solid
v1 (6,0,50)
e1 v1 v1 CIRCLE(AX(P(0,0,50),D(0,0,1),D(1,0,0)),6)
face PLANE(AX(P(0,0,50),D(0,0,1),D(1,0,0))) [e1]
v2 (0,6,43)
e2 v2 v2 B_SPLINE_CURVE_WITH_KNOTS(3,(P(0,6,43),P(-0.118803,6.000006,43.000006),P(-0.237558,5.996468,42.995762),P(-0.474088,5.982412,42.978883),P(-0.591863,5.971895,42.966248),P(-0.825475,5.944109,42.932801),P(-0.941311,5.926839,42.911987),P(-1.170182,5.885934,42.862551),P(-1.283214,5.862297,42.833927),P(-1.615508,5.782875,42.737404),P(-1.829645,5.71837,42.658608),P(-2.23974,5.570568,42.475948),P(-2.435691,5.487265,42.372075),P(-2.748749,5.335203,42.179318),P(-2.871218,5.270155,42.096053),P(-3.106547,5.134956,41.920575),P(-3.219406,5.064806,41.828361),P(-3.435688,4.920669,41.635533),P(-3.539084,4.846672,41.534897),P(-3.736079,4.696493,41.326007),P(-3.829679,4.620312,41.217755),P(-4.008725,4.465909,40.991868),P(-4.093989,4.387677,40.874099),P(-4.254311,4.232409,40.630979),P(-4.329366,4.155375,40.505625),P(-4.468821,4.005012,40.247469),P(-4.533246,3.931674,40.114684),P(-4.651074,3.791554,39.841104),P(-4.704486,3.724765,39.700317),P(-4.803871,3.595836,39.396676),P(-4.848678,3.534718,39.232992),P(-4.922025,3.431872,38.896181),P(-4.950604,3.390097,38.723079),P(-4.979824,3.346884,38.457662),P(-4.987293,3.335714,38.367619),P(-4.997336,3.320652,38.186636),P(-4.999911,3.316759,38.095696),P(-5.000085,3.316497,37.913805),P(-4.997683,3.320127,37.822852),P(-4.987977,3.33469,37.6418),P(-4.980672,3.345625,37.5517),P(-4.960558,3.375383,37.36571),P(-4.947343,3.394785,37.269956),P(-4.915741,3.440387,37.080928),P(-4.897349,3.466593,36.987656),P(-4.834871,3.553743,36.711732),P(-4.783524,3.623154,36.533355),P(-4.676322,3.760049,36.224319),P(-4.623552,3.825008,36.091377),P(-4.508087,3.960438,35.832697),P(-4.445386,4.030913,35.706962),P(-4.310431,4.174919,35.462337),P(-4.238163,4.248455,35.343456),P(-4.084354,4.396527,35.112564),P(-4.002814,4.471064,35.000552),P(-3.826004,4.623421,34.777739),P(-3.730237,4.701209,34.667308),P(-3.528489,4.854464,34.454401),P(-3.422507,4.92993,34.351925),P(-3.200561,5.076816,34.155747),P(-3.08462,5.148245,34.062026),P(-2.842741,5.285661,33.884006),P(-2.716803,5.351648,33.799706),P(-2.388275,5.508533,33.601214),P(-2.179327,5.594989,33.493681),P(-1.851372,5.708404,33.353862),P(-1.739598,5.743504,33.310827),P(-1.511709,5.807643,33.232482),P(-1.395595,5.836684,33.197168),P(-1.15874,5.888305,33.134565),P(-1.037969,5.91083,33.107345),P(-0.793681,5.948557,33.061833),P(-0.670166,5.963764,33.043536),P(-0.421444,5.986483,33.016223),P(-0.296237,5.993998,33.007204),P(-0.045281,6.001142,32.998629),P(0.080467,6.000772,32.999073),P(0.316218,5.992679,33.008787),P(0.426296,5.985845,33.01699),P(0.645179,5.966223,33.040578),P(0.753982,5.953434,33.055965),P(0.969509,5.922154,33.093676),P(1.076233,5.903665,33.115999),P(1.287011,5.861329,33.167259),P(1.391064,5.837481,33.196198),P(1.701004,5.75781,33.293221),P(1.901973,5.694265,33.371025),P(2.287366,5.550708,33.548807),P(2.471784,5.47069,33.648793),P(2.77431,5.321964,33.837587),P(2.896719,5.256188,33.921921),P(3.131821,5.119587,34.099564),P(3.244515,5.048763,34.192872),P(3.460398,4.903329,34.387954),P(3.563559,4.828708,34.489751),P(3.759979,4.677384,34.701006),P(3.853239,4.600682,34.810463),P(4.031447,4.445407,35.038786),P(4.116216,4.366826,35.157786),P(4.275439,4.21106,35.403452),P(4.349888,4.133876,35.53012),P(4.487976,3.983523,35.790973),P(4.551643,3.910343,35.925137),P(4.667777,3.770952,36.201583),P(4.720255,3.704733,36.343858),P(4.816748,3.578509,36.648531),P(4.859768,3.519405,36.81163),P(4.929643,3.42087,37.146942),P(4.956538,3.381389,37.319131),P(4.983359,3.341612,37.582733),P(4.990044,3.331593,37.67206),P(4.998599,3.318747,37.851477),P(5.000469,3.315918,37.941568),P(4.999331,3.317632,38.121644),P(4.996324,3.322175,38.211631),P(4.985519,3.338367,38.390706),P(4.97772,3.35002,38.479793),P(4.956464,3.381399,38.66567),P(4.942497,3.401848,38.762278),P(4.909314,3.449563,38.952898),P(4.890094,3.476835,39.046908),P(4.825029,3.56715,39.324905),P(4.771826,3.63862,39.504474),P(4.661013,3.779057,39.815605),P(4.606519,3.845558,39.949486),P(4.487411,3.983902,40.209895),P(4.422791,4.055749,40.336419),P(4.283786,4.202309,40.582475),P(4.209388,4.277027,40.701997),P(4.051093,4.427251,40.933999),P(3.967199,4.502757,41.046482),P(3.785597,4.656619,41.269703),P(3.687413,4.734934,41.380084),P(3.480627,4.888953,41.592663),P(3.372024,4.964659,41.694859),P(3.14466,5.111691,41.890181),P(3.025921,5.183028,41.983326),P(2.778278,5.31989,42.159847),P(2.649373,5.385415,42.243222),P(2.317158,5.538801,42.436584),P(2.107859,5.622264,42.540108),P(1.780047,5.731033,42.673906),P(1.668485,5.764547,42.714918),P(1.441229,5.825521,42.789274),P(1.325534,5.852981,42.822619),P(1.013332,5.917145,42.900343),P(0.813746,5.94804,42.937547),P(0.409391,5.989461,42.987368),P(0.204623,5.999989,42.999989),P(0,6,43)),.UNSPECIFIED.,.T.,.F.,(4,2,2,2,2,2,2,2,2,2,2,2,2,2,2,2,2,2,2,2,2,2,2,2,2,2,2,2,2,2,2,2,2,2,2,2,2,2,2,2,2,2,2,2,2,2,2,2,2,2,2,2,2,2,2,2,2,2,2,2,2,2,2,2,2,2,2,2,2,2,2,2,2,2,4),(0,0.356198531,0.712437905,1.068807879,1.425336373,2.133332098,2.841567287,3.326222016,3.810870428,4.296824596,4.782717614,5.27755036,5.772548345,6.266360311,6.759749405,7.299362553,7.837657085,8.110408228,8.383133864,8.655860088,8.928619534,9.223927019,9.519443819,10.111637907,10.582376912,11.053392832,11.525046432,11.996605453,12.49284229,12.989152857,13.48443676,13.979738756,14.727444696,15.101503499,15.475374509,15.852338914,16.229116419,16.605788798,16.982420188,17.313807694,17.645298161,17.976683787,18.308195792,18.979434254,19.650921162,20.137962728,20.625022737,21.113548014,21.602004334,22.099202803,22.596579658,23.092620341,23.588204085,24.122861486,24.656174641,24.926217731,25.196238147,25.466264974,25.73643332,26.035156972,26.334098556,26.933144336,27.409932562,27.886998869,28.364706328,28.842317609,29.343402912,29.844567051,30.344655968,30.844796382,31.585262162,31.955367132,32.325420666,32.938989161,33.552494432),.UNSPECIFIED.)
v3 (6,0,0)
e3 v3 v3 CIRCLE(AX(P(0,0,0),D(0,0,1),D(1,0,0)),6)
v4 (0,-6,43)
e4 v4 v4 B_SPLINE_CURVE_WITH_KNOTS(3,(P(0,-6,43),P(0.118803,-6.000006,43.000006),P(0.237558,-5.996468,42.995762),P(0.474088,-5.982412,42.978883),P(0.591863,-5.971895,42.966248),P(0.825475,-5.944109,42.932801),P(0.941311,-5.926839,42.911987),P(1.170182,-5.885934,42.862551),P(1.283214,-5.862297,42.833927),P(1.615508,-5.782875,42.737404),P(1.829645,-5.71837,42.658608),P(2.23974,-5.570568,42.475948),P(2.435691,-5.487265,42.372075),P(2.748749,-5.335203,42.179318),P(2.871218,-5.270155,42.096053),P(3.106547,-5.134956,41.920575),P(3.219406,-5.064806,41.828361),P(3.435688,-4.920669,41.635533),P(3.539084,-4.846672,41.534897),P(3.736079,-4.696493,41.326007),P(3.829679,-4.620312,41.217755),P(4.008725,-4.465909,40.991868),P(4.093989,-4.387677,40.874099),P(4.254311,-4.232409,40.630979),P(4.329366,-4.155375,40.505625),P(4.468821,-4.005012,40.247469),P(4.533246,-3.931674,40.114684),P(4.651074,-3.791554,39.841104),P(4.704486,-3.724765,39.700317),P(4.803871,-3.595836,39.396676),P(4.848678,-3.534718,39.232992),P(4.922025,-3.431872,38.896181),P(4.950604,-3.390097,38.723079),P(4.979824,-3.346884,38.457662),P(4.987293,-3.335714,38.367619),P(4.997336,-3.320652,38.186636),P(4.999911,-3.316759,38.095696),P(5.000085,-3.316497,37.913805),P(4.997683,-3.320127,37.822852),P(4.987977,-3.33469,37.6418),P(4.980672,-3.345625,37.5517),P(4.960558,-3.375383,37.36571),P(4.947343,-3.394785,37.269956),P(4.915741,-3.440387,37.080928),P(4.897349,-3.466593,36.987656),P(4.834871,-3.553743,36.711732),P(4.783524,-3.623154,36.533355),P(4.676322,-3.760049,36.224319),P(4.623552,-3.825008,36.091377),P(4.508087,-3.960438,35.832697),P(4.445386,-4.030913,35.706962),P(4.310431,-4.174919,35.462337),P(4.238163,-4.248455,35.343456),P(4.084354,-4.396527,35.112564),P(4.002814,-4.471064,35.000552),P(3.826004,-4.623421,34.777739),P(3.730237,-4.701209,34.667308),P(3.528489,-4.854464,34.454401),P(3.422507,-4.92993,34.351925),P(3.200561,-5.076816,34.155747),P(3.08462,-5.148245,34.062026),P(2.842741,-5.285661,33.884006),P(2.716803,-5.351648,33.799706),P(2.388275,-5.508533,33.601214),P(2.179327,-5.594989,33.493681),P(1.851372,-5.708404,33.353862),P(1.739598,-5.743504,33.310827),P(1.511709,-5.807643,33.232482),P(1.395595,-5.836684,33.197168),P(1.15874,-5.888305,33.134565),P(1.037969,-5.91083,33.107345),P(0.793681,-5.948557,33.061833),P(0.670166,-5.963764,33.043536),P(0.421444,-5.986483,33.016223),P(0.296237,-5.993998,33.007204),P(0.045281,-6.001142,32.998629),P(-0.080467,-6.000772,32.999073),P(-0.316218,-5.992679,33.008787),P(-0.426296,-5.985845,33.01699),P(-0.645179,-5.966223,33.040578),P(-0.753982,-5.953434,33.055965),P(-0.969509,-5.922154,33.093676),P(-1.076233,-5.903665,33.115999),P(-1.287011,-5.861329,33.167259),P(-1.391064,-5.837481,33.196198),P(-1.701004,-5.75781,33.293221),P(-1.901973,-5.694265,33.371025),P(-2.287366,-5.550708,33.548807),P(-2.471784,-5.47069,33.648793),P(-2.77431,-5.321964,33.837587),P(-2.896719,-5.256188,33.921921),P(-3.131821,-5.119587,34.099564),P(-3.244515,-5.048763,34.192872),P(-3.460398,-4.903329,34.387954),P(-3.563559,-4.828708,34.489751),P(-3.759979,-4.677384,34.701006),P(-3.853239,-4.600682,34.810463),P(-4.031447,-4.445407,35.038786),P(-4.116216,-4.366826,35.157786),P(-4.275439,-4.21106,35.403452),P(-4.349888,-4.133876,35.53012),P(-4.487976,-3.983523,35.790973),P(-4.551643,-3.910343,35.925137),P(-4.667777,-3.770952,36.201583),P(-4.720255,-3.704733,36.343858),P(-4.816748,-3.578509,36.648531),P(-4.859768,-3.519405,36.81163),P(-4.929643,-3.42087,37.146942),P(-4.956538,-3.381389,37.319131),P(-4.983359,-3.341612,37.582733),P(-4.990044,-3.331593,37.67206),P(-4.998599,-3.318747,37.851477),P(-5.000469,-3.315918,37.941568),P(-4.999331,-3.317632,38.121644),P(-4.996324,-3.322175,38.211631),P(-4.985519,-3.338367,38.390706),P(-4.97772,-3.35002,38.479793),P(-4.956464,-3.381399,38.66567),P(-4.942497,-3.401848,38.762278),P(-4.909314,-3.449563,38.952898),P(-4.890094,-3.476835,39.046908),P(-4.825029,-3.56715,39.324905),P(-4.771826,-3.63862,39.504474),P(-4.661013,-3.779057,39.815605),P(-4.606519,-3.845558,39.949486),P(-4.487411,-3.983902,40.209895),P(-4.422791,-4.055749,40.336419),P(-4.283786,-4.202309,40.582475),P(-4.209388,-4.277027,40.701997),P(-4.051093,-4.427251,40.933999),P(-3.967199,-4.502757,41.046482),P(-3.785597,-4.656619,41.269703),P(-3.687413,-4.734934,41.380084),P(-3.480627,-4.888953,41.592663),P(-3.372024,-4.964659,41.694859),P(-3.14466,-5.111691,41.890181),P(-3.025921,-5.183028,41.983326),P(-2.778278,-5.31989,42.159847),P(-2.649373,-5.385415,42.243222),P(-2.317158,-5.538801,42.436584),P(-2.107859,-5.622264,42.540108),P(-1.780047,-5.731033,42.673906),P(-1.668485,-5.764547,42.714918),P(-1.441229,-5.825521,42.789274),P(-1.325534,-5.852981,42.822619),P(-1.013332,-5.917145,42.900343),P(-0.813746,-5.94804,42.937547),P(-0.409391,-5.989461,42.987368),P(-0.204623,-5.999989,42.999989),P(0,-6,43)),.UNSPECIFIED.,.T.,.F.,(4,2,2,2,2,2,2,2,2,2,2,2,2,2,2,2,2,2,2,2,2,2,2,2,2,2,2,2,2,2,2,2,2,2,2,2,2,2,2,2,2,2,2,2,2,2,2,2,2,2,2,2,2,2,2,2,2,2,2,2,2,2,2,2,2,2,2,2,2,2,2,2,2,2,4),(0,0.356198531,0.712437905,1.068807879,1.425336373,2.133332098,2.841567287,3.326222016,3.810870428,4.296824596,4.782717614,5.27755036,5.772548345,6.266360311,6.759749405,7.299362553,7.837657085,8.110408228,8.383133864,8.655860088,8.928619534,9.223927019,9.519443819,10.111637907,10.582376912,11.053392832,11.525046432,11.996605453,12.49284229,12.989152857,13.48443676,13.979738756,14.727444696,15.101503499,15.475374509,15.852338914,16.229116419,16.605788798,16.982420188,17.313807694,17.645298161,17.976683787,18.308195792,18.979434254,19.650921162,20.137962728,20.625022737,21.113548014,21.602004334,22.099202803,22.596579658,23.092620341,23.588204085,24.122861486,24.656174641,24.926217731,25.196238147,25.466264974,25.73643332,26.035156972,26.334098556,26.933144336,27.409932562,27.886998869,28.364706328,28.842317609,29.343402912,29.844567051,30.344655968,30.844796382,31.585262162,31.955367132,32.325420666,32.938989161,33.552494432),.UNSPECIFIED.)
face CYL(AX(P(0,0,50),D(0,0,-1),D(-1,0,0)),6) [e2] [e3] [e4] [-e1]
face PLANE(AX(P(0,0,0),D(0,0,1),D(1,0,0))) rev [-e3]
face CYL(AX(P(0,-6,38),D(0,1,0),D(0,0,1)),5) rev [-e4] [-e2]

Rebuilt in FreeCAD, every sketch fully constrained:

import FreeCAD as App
import Part
import Sketcher
from FreeCAD import Vector

doc = App.newDocument("Part")
body = doc.addObject("PartDesign::Body", "Body")

# Sketch on XY plane
sketch1 = doc.addObject("Sketcher::SketchObject", "Sketch")
body.addObject(sketch1)
sketch1.AttachmentSupport = (doc.XY_Plane, [""])
sketch1.MapMode = "FlatFace"
sketch1.addGeometry(Part.Circle(Vector(0, 0, 0), Vector(0, 0, 1), 6), False)
sketch1.addConstraint([
    Sketcher.Constraint("Coincident", 0, 3, -1, 1),
    Sketcher.Constraint("Diameter", 0, 12.0),
])
pad1 = doc.addObject("PartDesign::Pad", "Pad")
body.addObject(pad1)
pad1.Profile = sketch1
pad1.Length = 50

# Sketch on XZ plane
sketch2 = doc.addObject("Sketcher::SketchObject", "Sketch001")
body.addObject(sketch2)
sketch2.AttachmentSupport = (doc.XZ_Plane, [""])
sketch2.MapMode = "FlatFace"
sketch2.addGeometry(Part.Circle(Vector(0, 38, 0), Vector(0, 0, 1), 5), False)
sketch2.addConstraint([
    Sketcher.Constraint("PointOnObject", 0, 3, -2),
    Sketcher.Constraint("Diameter", 0, 10.0),
    Sketcher.Constraint("DistanceY", -1, 1, 0, 3, 38.0),
])
pocket1 = doc.addObject("PartDesign::Pocket", "Pocket")
body.addObject(pocket1)
pocket1.Profile = sketch2
pocket1.Type = "ThroughAll"
pocket1.Midplane = True

doc.recompute()
